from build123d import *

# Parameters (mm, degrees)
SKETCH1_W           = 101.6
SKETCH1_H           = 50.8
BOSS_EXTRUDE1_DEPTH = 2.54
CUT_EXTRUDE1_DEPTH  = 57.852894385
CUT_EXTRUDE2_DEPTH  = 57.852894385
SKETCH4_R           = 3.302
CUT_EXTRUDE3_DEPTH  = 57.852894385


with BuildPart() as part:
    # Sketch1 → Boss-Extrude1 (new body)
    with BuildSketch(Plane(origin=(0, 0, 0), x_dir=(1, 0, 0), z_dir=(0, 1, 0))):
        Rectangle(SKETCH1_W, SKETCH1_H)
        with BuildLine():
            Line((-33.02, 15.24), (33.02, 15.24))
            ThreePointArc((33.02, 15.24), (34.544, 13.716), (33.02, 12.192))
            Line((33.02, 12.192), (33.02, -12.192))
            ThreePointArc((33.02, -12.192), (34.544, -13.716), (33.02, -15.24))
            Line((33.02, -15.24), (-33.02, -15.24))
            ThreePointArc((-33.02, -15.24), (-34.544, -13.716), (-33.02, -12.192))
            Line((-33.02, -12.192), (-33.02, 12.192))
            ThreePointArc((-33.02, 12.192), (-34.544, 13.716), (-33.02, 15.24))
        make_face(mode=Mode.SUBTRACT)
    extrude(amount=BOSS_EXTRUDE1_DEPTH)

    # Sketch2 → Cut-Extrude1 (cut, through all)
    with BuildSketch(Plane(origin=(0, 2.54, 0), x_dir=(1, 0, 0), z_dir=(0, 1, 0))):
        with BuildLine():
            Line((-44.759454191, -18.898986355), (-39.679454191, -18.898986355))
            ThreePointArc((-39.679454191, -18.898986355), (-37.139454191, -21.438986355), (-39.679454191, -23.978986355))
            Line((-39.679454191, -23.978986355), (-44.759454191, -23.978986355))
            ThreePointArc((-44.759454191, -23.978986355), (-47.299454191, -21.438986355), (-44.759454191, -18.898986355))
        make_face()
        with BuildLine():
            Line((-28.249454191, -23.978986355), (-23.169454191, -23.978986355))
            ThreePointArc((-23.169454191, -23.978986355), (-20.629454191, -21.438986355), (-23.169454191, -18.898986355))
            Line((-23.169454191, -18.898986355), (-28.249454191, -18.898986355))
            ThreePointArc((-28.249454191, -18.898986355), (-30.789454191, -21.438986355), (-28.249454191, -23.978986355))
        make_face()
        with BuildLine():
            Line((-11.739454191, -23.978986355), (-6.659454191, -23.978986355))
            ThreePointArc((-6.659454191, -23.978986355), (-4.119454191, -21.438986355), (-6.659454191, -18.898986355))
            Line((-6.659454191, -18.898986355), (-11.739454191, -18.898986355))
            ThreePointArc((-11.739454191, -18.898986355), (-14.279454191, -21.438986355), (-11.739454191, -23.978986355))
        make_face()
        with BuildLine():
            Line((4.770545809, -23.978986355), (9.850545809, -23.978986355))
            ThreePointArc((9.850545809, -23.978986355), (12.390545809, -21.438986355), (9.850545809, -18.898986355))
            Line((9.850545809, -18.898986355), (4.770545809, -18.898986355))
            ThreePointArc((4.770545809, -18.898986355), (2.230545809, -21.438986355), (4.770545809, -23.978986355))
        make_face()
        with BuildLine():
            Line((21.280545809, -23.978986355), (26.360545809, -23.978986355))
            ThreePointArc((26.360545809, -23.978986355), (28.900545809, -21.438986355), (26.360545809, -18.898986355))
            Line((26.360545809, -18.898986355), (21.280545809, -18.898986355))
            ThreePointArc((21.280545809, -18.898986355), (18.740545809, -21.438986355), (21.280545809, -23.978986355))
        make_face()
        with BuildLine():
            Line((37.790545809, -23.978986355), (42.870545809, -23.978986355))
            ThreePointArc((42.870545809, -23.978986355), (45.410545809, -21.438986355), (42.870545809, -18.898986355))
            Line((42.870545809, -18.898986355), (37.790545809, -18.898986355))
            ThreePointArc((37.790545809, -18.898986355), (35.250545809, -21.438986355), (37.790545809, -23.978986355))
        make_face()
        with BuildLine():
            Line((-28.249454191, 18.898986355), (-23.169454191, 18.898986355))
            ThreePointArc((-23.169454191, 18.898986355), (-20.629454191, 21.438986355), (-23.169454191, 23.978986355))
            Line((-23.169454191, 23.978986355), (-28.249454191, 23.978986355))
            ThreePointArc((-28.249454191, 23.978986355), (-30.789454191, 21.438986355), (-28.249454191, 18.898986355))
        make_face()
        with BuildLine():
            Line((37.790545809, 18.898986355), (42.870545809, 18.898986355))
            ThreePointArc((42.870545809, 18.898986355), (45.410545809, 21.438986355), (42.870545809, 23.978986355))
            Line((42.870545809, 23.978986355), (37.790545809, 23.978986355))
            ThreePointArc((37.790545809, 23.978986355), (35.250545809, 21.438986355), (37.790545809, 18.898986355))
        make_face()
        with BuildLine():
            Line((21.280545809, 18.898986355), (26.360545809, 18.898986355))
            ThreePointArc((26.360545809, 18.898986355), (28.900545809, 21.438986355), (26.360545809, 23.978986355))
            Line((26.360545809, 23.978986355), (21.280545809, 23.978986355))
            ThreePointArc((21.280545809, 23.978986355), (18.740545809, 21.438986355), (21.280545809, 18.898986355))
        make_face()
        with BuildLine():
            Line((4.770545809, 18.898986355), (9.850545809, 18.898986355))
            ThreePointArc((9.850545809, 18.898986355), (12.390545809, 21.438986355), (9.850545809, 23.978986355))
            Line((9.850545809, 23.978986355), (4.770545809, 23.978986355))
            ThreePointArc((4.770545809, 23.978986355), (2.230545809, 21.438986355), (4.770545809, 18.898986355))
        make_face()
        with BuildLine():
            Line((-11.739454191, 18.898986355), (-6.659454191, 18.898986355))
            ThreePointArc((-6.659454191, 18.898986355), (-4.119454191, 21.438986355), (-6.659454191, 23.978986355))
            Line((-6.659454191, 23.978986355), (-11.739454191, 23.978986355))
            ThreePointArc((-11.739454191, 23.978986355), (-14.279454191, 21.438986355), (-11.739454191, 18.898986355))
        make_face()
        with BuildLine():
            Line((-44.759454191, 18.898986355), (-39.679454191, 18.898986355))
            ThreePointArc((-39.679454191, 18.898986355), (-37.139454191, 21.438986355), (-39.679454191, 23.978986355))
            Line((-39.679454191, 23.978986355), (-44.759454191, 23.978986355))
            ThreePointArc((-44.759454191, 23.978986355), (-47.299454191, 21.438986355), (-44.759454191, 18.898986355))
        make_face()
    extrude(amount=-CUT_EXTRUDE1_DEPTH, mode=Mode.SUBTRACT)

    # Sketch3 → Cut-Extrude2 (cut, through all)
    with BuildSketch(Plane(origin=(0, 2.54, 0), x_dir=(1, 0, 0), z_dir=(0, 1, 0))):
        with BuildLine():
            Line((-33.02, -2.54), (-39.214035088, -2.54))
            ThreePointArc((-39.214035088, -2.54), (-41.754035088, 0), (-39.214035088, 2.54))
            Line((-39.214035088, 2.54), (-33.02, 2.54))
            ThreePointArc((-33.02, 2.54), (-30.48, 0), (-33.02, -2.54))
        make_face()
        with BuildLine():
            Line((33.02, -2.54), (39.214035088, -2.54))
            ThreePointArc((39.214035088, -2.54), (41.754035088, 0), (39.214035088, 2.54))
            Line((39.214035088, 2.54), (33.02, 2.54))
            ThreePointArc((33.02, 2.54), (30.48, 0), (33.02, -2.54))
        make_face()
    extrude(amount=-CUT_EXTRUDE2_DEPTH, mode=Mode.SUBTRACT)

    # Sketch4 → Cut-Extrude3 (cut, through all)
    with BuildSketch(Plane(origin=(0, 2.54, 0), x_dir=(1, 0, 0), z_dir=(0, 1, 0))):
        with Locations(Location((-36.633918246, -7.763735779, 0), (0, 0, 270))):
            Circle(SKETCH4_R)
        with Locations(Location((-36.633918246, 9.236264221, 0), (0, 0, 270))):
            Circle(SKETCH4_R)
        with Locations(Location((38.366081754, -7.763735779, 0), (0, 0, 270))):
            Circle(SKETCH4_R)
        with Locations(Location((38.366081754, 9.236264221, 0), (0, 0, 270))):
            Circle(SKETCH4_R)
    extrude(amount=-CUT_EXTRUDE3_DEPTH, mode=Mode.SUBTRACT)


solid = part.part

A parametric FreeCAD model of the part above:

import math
import FreeCAD as App
import Part
import Sketcher
from FreeCAD import Vector
Q = App.Units.Quantity


def add_polygon(sketch, points):
    """Adds a closed chain of lines whose ends are joined by coincident constraints."""
    first, n = sketch.GeometryCount, len(points)
    for a, b in zip(points, points[1:] + points[:1]):
        sketch.addGeometry(Part.LineSegment(App.Vector(*a, 0), App.Vector(*b, 0)), False)
    for i in range(n):
        sketch.addConstraint(Sketcher.Constraint("Coincident", first + i, 2, first + (i + 1) % n, 1))

doc = App.newDocument("Part")
body = doc.addObject("PartDesign::Body", "Body")

# Sketch on XZ plane
sketch1 = doc.addObject("Sketcher::SketchObject", "Sketch")
body.addObject(sketch1)
sketch1.AttachmentSupport = (doc.XZ_Plane, [""])
sketch1.MapMode = "FlatFace"
add_polygon(sketch1, [(-50.8, -25.4), (-50.8, 25.4), (50.8, 25.4), (50.8, -25.4)])  # lines 0-3
sketch1.addGeometry(Part.ArcOfCircle(Part.Circle(Vector(-33, -13.7, 0), Vector(0, 0, 1), 1.5), math.radians(90), math.radians(270)), False)  # 4
sketch1.addGeometry(Part.LineSegment(Vector(-33, -15.2, 0), Vector(33, -15.2, 0)), False)  # 5
sketch1.addGeometry(Part.ArcOfCircle(Part.Circle(Vector(33, -13.7, 0), Vector(0, 0, 1), 1.5), math.radians(-90), math.radians(90)), False)  # 6
sketch1.addGeometry(Part.LineSegment(Vector(33, -12.2, 0), Vector(33, 12.2, 0)), False)  # 7
sketch1.addGeometry(Part.ArcOfCircle(Part.Circle(Vector(33, 13.7, 0), Vector(0, 0, 1), 1.5), math.radians(-90), math.radians(90)), False)  # 8
sketch1.addGeometry(Part.LineSegment(Vector(33, 15.2, 0), Vector(-33, 15.2, 0)), False)  # 9
sketch1.addGeometry(Part.ArcOfCircle(Part.Circle(Vector(-33, 13.7, 0), Vector(0, 0, 1), 1.5), math.radians(90), math.radians(270)), False)  # 10
sketch1.addGeometry(Part.LineSegment(Vector(-33, 12.2, 0), Vector(-33, -12.2, 0)), False)  # 11
sketch1.addConstraint([
    Sketcher.Constraint("Tangent", 4, 2, 5, 1),
    Sketcher.Constraint("Tangent", 5, 2, 6, 1),
    Sketcher.Constraint("Coincident", 6, 2, 7, 1),
    Sketcher.Constraint("Coincident", 7, 2, 8, 1),
    Sketcher.Constraint("Tangent", 8, 2, 9, 1),
    Sketcher.Constraint("Tangent", 9, 2, 10, 1),
    Sketcher.Constraint("Coincident", 10, 2, 11, 1),
    Sketcher.Constraint("Coincident", 11, 2, 4, 1),
    Sketcher.Constraint("Vertical", 0),
    Sketcher.Constraint("Horizontal", 1),
    Sketcher.Constraint("Vertical", 2),
    Sketcher.Constraint("Horizontal", 3),
    Sketcher.Constraint("Horizontal", 5),
    Sketcher.Constraint("Vertical", 7),
    Sketcher.Constraint("Horizontal", 9),
    Sketcher.Constraint("Vertical", 11),
    Sketcher.Constraint("Equal", 4, 6),
    Sketcher.Constraint("Equal", 6, 8),
    Sketcher.Constraint("Equal", 8, 10),
    Sketcher.Constraint("Symmetric", 4, 3, 8, 3, -1, 1),
    Sketcher.Constraint("Symmetric", 0, 2, 2, 2, -1, 1),
    Sketcher.Constraint("Vertical", 6, 3, 8, 3),
    Sketcher.Constraint("Vertical", 4, 3, 10, 3),
    Sketcher.Constraint("Vertical", 5, 2, 6, 2),
    Sketcher.Constraint("Vertical", 9, 2, 10, 2),
    Sketcher.Constraint("DistanceX", 1, 1, 1, 2, Q("4 in")),
    Sketcher.Constraint("DistanceY", 0, 1, 0, 2, Q("2 in")),
    Sketcher.Constraint("Radius", 4, Q("0.06 in")),
    Sketcher.Constraint("DistanceX", 5, 1, 5, 2, Q("2.6 in")),
    Sketcher.Constraint("DistanceY", 7, 1, 7, 2, Q("0.96 in")),
])
pad1 = doc.addObject("PartDesign::Pad", "Pad")
body.addObject(pad1)
pad1.Profile = sketch1
pad1.Length = Q("0.1 in")
pad1.Reversed = True

# Sketch on XZ plane
sketch2 = doc.addObject("Sketcher::SketchObject", "Sketch001")
body.addObject(sketch2)
sketch2.AttachmentSupport = (doc.XZ_Plane, [""])
sketch2.MapMode = "FlatFace"
sketch2.AttachmentOffset = App.Placement(Vector(0, 0, -0.1 * 25.4), App.Rotation())
sketch2.addGeometry([
    Part.LineSegment(Vector(-39.7, 18.9, 0), Vector(-44.8, 18.9, 0)),  # 0
    Part.ArcOfCircle(Part.Circle(Vector(-44.8, 21.4, 0), Vector(0, 0, 1), 2.5), math.radians(90), math.radians(270)),  # 1
    Part.LineSegment(Vector(-44.8, 24, 0), Vector(-39.7, 24, 0)),  # 2
    Part.ArcOfCircle(Part.Circle(Vector(-39.7, 21.4, 0), Vector(0, 0, 1), 2.5), math.radians(-90), math.radians(90)),  # 3
    Part.LineSegment(Vector(-28.2, 24, 0), Vector(-23.2, 24, 0)),  # 4
    Part.ArcOfCircle(Part.Circle(Vector(-23.2, 21.4, 0), Vector(0, 0, 1), 2.5), math.radians(-90), math.radians(90)),  # 5
    Part.LineSegment(Vector(-23.2, 18.9, 0), Vector(-28.2, 18.9, 0)),  # 6
    Part.ArcOfCircle(Part.Circle(Vector(-28.2, 21.4, 0), Vector(0, 0, 1), 2.5), math.radians(90), math.radians(270)),  # 7
    Part.LineSegment(Vector(-11.7, 24, 0), Vector(-6.7, 24, 0)),  # 8
    Part.ArcOfCircle(Part.Circle(Vector(-6.7, 21.4, 0), Vector(0, 0, 1), 2.5), math.radians(-90), math.radians(90)),  # 9
    Part.LineSegment(Vector(-6.7, 18.9, 0), Vector(-11.7, 18.9, 0)),  # 10
    Part.ArcOfCircle(Part.Circle(Vector(-11.7, 21.4, 0), Vector(0, 0, 1), 2.5), math.radians(90), math.radians(270)),  # 11
    Part.LineSegment(Vector(4.8, 24, 0), Vector(9.9, 24, 0)),  # 12
    Part.ArcOfCircle(Part.Circle(Vector(9.9, 21.4, 0), Vector(0, 0, 1), 2.5), math.radians(-90), math.radians(90)),  # 13
    Part.LineSegment(Vector(9.9, 18.9, 0), Vector(4.8, 18.9, 0)),  # 14
    Part.ArcOfCircle(Part.Circle(Vector(4.8, 21.4, 0), Vector(0, 0, 1), 2.5), math.radians(90), math.radians(270)),  # 15
    Part.LineSegment(Vector(21.3, 24, 0), Vector(26.4, 24, 0)),  # 16
    Part.ArcOfCircle(Part.Circle(Vector(26.4, 21.4, 0), Vector(0, 0, 1), 2.5), math.radians(-90), math.radians(90)),  # 17
    Part.LineSegment(Vector(26.4, 18.9, 0), Vector(21.3, 18.9, 0)),  # 18
    Part.ArcOfCircle(Part.Circle(Vector(21.3, 21.4, 0), Vector(0, 0, 1), 2.5), math.radians(90), math.radians(270)),  # 19
    Part.LineSegment(Vector(37.8, 24, 0), Vector(42.9, 24, 0)),  # 20
    Part.ArcOfCircle(Part.Circle(Vector(42.9, 21.4, 0), Vector(0, 0, 1), 2.5), math.radians(-90), math.radians(90)),  # 21
    Part.LineSegment(Vector(42.9, 18.9, 0), Vector(37.8, 18.9, 0)),  # 22
    Part.ArcOfCircle(Part.Circle(Vector(37.8, 21.4, 0), Vector(0, 0, 1), 2.5), math.radians(90), math.radians(270)),  # 23
    Part.LineSegment(Vector(-28.2, -18.9, 0), Vector(-23.2, -18.9, 0)),  # 24
    Part.ArcOfCircle(Part.Circle(Vector(-23.2, -21.4, 0), Vector(0, 0, 1), 2.5), math.radians(-90), math.radians(90)),  # 25
    Part.LineSegment(Vector(-23.2, -24, 0), Vector(-28.2, -24, 0)),  # 26
    Part.ArcOfCircle(Part.Circle(Vector(-28.2, -21.4, 0), Vector(0, 0, 1), 2.5), math.radians(90), math.radians(270)),  # 27
    Part.LineSegment(Vector(37.8, -18.9, 0), Vector(42.9, -18.9, 0)),  # 28
    Part.ArcOfCircle(Part.Circle(Vector(42.9, -21.4, 0), Vector(0, 0, 1), 2.5), math.radians(-90), math.radians(90)),  # 29
    Part.LineSegment(Vector(42.9, -24, 0), Vector(37.8, -24, 0)),  # 30
    Part.ArcOfCircle(Part.Circle(Vector(37.8, -21.4, 0), Vector(0, 0, 1), 2.5), math.radians(90), math.radians(270)),  # 31
    Part.LineSegment(Vector(21.3, -18.9, 0), Vector(26.4, -18.9, 0)),  # 32
    Part.ArcOfCircle(Part.Circle(Vector(26.4, -21.4, 0), Vector(0, 0, 1), 2.5), math.radians(-90), math.radians(90)),  # 33
    Part.LineSegment(Vector(26.4, -24, 0), Vector(21.3, -24, 0)),  # 34
    Part.ArcOfCircle(Part.Circle(Vector(21.3, -21.4, 0), Vector(0, 0, 1), 2.5), math.radians(90), math.radians(270)),  # 35
    Part.LineSegment(Vector(4.8, -18.9, 0), Vector(9.9, -18.9, 0)),  # 36
    Part.ArcOfCircle(Part.Circle(Vector(9.9, -21.4, 0), Vector(0, 0, 1), 2.5), math.radians(-90), math.radians(90)),  # 37
    Part.LineSegment(Vector(9.9, -24, 0), Vector(4.8, -24, 0)),  # 38
    Part.ArcOfCircle(Part.Circle(Vector(4.8, -21.4, 0), Vector(0, 0, 1), 2.5), math.radians(90), math.radians(270)),  # 39
    Part.LineSegment(Vector(-11.7, -18.9, 0), Vector(-6.7, -18.9, 0)),  # 40
    Part.ArcOfCircle(Part.Circle(Vector(-6.7, -21.4, 0), Vector(0, 0, 1), 2.5), math.radians(-90), math.radians(90)),  # 41
    Part.LineSegment(Vector(-6.7, -24, 0), Vector(-11.7, -24, 0)),  # 42
    Part.ArcOfCircle(Part.Circle(Vector(-11.7, -21.4, 0), Vector(0, 0, 1), 2.5), math.radians(90), math.radians(270)),  # 43
    Part.LineSegment(Vector(-44.8, -18.9, 0), Vector(-39.7, -18.9, 0)),  # 44
    Part.ArcOfCircle(Part.Circle(Vector(-39.7, -21.4, 0), Vector(0, 0, 1), 2.5), math.radians(-90), math.radians(90)),  # 45
    Part.LineSegment(Vector(-39.7, -24, 0), Vector(-44.8, -24, 0)),  # 46
    Part.ArcOfCircle(Part.Circle(Vector(-44.8, -21.4, 0), Vector(0, 0, 1), 2.5), math.radians(90), math.radians(270)),  # 47
], False)
sketch2.addConstraint([
    Sketcher.Constraint("Tangent", 0, 2, 1, 2),
    Sketcher.Constraint("Tangent", 1, 1, 2, 1),
    Sketcher.Constraint("Tangent", 2, 2, 3, 2),
    Sketcher.Constraint("Tangent", 3, 1, 0, 1),
    Sketcher.Constraint("Tangent", 4, 2, 5, 2),
    Sketcher.Constraint("Tangent", 5, 1, 6, 1),
    Sketcher.Constraint("Tangent", 6, 2, 7, 2),
    Sketcher.Constraint("Tangent", 7, 1, 4, 1),
    Sketcher.Constraint("Tangent", 8, 2, 9, 2),
    Sketcher.Constraint("Tangent", 9, 1, 10, 1),
    Sketcher.Constraint("Tangent", 10, 2, 11, 2),
    Sketcher.Constraint("Tangent", 11, 1, 8, 1),
    Sketcher.Constraint("Tangent", 12, 2, 13, 2),
    Sketcher.Constraint("Tangent", 13, 1, 14, 1),
    Sketcher.Constraint("Tangent", 14, 2, 15, 2),
    Sketcher.Constraint("Tangent", 15, 1, 12, 1),
    Sketcher.Constraint("Tangent", 16, 2, 17, 2),
    Sketcher.Constraint("Tangent", 17, 1, 18, 1),
    Sketcher.Constraint("Tangent", 18, 2, 19, 2),
    Sketcher.Constraint("Tangent", 19, 1, 16, 1),
    Sketcher.Constraint("Tangent", 20, 2, 21, 2),
    Sketcher.Constraint("Tangent", 21, 1, 22, 1),
    Sketcher.Constraint("Tangent", 22, 2, 23, 2),
    Sketcher.Constraint("Tangent", 23, 1, 20, 1),
    Sketcher.Constraint("Tangent", 24, 2, 25, 2),
    Sketcher.Constraint("Tangent", 25, 1, 26, 1),
    Sketcher.Constraint("Tangent", 26, 2, 27, 2),
    Sketcher.Constraint("Tangent", 27, 1, 24, 1),
    Sketcher.Constraint("Tangent", 28, 2, 29, 2),
    Sketcher.Constraint("Tangent", 29, 1, 30, 1),
    Sketcher.Constraint("Tangent", 30, 2, 31, 2),
    Sketcher.Constraint("Tangent", 31, 1, 28, 1),
    Sketcher.Constraint("Tangent", 32, 2, 33, 2),
    Sketcher.Constraint("Tangent", 33, 1, 34, 1),
    Sketcher.Constraint("Tangent", 34, 2, 35, 2),
    Sketcher.Constraint("Tangent", 35, 1, 32, 1),
    Sketcher.Constraint("Tangent", 36, 2, 37, 2),
    Sketcher.Constraint("Tangent", 37, 1, 38, 1),
    Sketcher.Constraint("Tangent", 38, 2, 39, 2),
    Sketcher.Constraint("Tangent", 39, 1, 36, 1),
    Sketcher.Constraint("Tangent", 40, 2, 41, 2),
    Sketcher.Constraint("Tangent", 41, 1, 42, 1),
    Sketcher.Constraint("Tangent", 42, 2, 43, 2),
    Sketcher.Constraint("Tangent", 43, 1, 40, 1),
    Sketcher.Constraint("Tangent", 44, 2, 45, 2),
    Sketcher.Constraint("Tangent", 45, 1, 46, 1),
    Sketcher.Constraint("Tangent", 46, 2, 47, 2),
    Sketcher.Constraint("Tangent", 47, 1, 44, 1),
    Sketcher.Constraint("Horizontal", 0),
    Sketcher.Constraint("Horizontal", 2),
    Sketcher.Constraint("Horizontal", 4),
    Sketcher.Constraint("Horizontal", 6),
    Sketcher.Constraint("Horizontal", 8),
    Sketcher.Constraint("Horizontal", 10),
    Sketcher.Constraint("Horizontal", 12),
    Sketcher.Constraint("Horizontal", 14),
    Sketcher.Constraint("Horizontal", 16),
    Sketcher.Constraint("Horizontal", 18),
    Sketcher.Constraint("Horizontal", 20),
    Sketcher.Constraint("Horizontal", 22),
    Sketcher.Constraint("Horizontal", 24),
    Sketcher.Constraint("Horizontal", 26),
    Sketcher.Constraint("Horizontal", 28),
    Sketcher.Constraint("Horizontal", 30),
    Sketcher.Constraint("Horizontal", 32),
    Sketcher.Constraint("Horizontal", 34),
    Sketcher.Constraint("Horizontal", 36),
    Sketcher.Constraint("Horizontal", 38),
    Sketcher.Constraint("Horizontal", 40),
    Sketcher.Constraint("Horizontal", 42),
    Sketcher.Constraint("Horizontal", 44),
    Sketcher.Constraint("Horizontal", 46),
    Sketcher.Constraint("Equal", 3, 5),
    Sketcher.Constraint("Equal", 7, 9),
    Sketcher.Constraint("Equal", 11, 13),
    Sketcher.Constraint("Equal", 15, 17),
    Sketcher.Constraint("Equal", 19, 21),
    Sketcher.Constraint("Equal", 23, 25),
    Sketcher.Constraint("Equal", 27, 29),
    Sketcher.Constraint("Equal", 31, 33),
    Sketcher.Constraint("Equal", 35, 37),
    Sketcher.Constraint("Equal", 39, 41),
    Sketcher.Constraint("Equal", 43, 45),
    Sketcher.Constraint("Symmetric", 5, 3, 25, 3, -1),
    Sketcher.Constraint("Symmetric", 21, 3, 29, 3, -1),
    Sketcher.Constraint("Symmetric", 17, 3, 33, 3, -1),
    Sketcher.Constraint("Symmetric", 13, 3, 37, 3, -1),
    Sketcher.Constraint("Symmetric", 9, 3, 41, 3, -1),
    Sketcher.Constraint("Symmetric", 3, 3, 45, 3, -1),
    Sketcher.Constraint("Horizontal", 3, 3, 5, 3),
    Sketcher.Constraint("Horizontal", 7, 3, 9, 3),
    Sketcher.Constraint("Horizontal", 11, 3, 13, 3),
    Sketcher.Constraint("Horizontal", 15, 3, 17, 3),
    Sketcher.Constraint("Horizontal", 19, 3, 21, 3),
    Sketcher.Constraint("Vertical", 7, 3, 27, 3),
    Sketcher.Constraint("Vertical", 23, 3, 31, 3),
    Sketcher.Constraint("Vertical", 19, 3, 35, 3),
    Sketcher.Constraint("Vertical", 15, 3, 39, 3),
    Sketcher.Constraint("Vertical", 11, 3, 43, 3),
    Sketcher.Constraint("Vertical", 1, 3, 47, 3),
    Sketcher.Constraint("Equal", 2, 4),
    Sketcher.Constraint("Equal", 6, 8),
    Sketcher.Constraint("Equal", 10, 12),
    Sketcher.Constraint("Equal", 14, 16),
    Sketcher.Constraint("Equal", 18, 20),
    Sketcher.Constraint("Radius", 1, Q("0.1 in")),
    Sketcher.Constraint("DistanceX", 0, 2, 0, 1, Q("0.2 in")),
    Sketcher.Constraint("DistanceX", 1, 3, -1, 1, 44.759454),
    Sketcher.Constraint("DistanceY", -1, 1, 1, 3, 21.438986),
    Sketcher.Constraint("DistanceX", 5, 3, -1, 1, 23.169454),
    Sketcher.Constraint("DistanceX", 9, 3, -1, 1, 6.659454),
    Sketcher.Constraint("DistanceX", -1, 1, 13, 3, 9.850546),
    Sketcher.Constraint("DistanceX", -1, 1, 17, 3, 26.360546),
    Sketcher.Constraint("DistanceX", -1, 1, 21, 3, 42.870546),
])
pocket1 = doc.addObject("PartDesign::Pocket", "Pocket")
body.addObject(pocket1)
pocket1.Profile = sketch2
pocket1.Type = "ThroughAll"
pocket1.Reversed = True

# Sketch on XZ plane
sketch3 = doc.addObject("Sketcher::SketchObject", "Sketch002")
body.addObject(sketch3)
sketch3.AttachmentSupport = (doc.XZ_Plane, [""])
sketch3.MapMode = "FlatFace"
sketch3.AttachmentOffset = App.Placement(Vector(0, 0, -0.1 * 25.4), App.Rotation())
sketch3.addGeometry([
    Part.LineSegment(Vector(-39.2, 2.5, 0), Vector(-33, 2.5, 0)),  # 0
    Part.ArcOfCircle(Part.Circle(Vector(-33, 0, 0), Vector(0, 0, 1), 2.5), math.radians(-90), math.radians(90)),  # 1
    Part.LineSegment(Vector(-33, -2.5, 0), Vector(-39.2, -2.5, 0)),  # 2
    Part.ArcOfCircle(Part.Circle(Vector(-39.2, 0, 0), Vector(0, 0, 1), 2.5), math.radians(90), math.radians(270)),  # 3
    Part.LineSegment(Vector(33, 2.5, 0), Vector(39.2, 2.5, 0)),  # 4
    Part.ArcOfCircle(Part.Circle(Vector(39.2, 0, 0), Vector(0, 0, 1), 2.5), math.radians(-90), math.radians(90)),  # 5
    Part.LineSegment(Vector(39.2, -2.5, 0), Vector(33, -2.5, 0)),  # 6
    Part.ArcOfCircle(Part.Circle(Vector(33, 0, 0), Vector(0, 0, 1), 2.5), math.radians(90), math.radians(270)),  # 7
], False)
sketch3.addConstraint([
    Sketcher.Constraint("Tangent", 0, 2, 1, 2),
    Sketcher.Constraint("Tangent", 1, 1, 2, 1),
    Sketcher.Constraint("Tangent", 2, 2, 3, 2),
    Sketcher.Constraint("Tangent", 3, 1, 0, 1),
    Sketcher.Constraint("Tangent", 4, 2, 5, 2),
    Sketcher.Constraint("Tangent", 5, 1, 6, 1),
    Sketcher.Constraint("Tangent", 6, 2, 7, 2),
    Sketcher.Constraint("Tangent", 7, 1, 4, 1),
    Sketcher.Constraint("Horizontal", 0),
    Sketcher.Constraint("Horizontal", 2),
    Sketcher.Constraint("Horizontal", 4),
    Sketcher.Constraint("Horizontal", 6),
    Sketcher.Constraint("Equal", 3, 5),
    Sketcher.Constraint("Symmetric", 3, 3, 5, 3, -1, 1),
    Sketcher.Constraint("Symmetric", 1, 3, 7, 3, -2),
    Sketcher.Constraint("Radius", 1, Q("0.1 in")),
    Sketcher.Constraint("DistanceX", 1, 3, -1, 1, Q("1.3 in")),
    Sketcher.Constraint("DistanceX", 0, 1, 0, 2, 6.194035),
])
pocket2 = doc.addObject("PartDesign::Pocket", "Pocket001")
body.addObject(pocket2)
pocket2.Profile = sketch3
pocket2.Type = "ThroughAll"
pocket2.Reversed = True

# Sketch on XZ plane
sketch4 = doc.addObject("Sketcher::SketchObject", "Sketch003")
body.addObject(sketch4)
sketch4.AttachmentSupport = (doc.XZ_Plane, [""])
sketch4.MapMode = "FlatFace"
sketch4.AttachmentOffset = App.Placement(Vector(0, 0, -0.1 * 25.4), App.Rotation())
sketch4.addGeometry([
    Part.Circle(Vector(-36.6, 7.8, 0), Vector(0, 0, 1), 3.3),
    Part.Circle(Vector(-36.6, -9.2, 0), Vector(0, 0, 1), 3.3),
    Part.Circle(Vector(38.4, 7.8, 0), Vector(0, 0, 1), 3.3),
    Part.Circle(Vector(38.4, -9.2, 0), Vector(0, 0, 1), 3.3),
], False)
sketch4.addConstraint([
    Sketcher.Constraint("Equal", 0, 1),
    Sketcher.Constraint("Equal", 1, 2),
    Sketcher.Constraint("Equal", 2, 3),
    Sketcher.Constraint("Horizontal", 0, 3, 2, 3),
    Sketcher.Constraint("Horizontal", 1, 3, 3, 3),
    Sketcher.Constraint("Vertical", 0, 3, 1, 3),
    Sketcher.Constraint("Vertical", 2, 3, 3, 3),
    Sketcher.Constraint("Diameter", 0, Q("0.26 in")),
    Sketcher.Constraint("DistanceY", 1, 3, 0, 3, 17.0),
    Sketcher.Constraint("DistanceX", 0, 3, 2, 3, 75.0),
    Sketcher.Constraint("DistanceX", 0, 3, -1, 1, 36.633918),
    Sketcher.Constraint("DistanceY", -1, 1, 0, 3, 7.763736),
])
pocket3 = doc.addObject("PartDesign::Pocket", "Pocket002")
body.addObject(pocket3)
pocket3.Profile = sketch4
pocket3.Type = "ThroughAll"
pocket3.Reversed = True

doc.recompute()
